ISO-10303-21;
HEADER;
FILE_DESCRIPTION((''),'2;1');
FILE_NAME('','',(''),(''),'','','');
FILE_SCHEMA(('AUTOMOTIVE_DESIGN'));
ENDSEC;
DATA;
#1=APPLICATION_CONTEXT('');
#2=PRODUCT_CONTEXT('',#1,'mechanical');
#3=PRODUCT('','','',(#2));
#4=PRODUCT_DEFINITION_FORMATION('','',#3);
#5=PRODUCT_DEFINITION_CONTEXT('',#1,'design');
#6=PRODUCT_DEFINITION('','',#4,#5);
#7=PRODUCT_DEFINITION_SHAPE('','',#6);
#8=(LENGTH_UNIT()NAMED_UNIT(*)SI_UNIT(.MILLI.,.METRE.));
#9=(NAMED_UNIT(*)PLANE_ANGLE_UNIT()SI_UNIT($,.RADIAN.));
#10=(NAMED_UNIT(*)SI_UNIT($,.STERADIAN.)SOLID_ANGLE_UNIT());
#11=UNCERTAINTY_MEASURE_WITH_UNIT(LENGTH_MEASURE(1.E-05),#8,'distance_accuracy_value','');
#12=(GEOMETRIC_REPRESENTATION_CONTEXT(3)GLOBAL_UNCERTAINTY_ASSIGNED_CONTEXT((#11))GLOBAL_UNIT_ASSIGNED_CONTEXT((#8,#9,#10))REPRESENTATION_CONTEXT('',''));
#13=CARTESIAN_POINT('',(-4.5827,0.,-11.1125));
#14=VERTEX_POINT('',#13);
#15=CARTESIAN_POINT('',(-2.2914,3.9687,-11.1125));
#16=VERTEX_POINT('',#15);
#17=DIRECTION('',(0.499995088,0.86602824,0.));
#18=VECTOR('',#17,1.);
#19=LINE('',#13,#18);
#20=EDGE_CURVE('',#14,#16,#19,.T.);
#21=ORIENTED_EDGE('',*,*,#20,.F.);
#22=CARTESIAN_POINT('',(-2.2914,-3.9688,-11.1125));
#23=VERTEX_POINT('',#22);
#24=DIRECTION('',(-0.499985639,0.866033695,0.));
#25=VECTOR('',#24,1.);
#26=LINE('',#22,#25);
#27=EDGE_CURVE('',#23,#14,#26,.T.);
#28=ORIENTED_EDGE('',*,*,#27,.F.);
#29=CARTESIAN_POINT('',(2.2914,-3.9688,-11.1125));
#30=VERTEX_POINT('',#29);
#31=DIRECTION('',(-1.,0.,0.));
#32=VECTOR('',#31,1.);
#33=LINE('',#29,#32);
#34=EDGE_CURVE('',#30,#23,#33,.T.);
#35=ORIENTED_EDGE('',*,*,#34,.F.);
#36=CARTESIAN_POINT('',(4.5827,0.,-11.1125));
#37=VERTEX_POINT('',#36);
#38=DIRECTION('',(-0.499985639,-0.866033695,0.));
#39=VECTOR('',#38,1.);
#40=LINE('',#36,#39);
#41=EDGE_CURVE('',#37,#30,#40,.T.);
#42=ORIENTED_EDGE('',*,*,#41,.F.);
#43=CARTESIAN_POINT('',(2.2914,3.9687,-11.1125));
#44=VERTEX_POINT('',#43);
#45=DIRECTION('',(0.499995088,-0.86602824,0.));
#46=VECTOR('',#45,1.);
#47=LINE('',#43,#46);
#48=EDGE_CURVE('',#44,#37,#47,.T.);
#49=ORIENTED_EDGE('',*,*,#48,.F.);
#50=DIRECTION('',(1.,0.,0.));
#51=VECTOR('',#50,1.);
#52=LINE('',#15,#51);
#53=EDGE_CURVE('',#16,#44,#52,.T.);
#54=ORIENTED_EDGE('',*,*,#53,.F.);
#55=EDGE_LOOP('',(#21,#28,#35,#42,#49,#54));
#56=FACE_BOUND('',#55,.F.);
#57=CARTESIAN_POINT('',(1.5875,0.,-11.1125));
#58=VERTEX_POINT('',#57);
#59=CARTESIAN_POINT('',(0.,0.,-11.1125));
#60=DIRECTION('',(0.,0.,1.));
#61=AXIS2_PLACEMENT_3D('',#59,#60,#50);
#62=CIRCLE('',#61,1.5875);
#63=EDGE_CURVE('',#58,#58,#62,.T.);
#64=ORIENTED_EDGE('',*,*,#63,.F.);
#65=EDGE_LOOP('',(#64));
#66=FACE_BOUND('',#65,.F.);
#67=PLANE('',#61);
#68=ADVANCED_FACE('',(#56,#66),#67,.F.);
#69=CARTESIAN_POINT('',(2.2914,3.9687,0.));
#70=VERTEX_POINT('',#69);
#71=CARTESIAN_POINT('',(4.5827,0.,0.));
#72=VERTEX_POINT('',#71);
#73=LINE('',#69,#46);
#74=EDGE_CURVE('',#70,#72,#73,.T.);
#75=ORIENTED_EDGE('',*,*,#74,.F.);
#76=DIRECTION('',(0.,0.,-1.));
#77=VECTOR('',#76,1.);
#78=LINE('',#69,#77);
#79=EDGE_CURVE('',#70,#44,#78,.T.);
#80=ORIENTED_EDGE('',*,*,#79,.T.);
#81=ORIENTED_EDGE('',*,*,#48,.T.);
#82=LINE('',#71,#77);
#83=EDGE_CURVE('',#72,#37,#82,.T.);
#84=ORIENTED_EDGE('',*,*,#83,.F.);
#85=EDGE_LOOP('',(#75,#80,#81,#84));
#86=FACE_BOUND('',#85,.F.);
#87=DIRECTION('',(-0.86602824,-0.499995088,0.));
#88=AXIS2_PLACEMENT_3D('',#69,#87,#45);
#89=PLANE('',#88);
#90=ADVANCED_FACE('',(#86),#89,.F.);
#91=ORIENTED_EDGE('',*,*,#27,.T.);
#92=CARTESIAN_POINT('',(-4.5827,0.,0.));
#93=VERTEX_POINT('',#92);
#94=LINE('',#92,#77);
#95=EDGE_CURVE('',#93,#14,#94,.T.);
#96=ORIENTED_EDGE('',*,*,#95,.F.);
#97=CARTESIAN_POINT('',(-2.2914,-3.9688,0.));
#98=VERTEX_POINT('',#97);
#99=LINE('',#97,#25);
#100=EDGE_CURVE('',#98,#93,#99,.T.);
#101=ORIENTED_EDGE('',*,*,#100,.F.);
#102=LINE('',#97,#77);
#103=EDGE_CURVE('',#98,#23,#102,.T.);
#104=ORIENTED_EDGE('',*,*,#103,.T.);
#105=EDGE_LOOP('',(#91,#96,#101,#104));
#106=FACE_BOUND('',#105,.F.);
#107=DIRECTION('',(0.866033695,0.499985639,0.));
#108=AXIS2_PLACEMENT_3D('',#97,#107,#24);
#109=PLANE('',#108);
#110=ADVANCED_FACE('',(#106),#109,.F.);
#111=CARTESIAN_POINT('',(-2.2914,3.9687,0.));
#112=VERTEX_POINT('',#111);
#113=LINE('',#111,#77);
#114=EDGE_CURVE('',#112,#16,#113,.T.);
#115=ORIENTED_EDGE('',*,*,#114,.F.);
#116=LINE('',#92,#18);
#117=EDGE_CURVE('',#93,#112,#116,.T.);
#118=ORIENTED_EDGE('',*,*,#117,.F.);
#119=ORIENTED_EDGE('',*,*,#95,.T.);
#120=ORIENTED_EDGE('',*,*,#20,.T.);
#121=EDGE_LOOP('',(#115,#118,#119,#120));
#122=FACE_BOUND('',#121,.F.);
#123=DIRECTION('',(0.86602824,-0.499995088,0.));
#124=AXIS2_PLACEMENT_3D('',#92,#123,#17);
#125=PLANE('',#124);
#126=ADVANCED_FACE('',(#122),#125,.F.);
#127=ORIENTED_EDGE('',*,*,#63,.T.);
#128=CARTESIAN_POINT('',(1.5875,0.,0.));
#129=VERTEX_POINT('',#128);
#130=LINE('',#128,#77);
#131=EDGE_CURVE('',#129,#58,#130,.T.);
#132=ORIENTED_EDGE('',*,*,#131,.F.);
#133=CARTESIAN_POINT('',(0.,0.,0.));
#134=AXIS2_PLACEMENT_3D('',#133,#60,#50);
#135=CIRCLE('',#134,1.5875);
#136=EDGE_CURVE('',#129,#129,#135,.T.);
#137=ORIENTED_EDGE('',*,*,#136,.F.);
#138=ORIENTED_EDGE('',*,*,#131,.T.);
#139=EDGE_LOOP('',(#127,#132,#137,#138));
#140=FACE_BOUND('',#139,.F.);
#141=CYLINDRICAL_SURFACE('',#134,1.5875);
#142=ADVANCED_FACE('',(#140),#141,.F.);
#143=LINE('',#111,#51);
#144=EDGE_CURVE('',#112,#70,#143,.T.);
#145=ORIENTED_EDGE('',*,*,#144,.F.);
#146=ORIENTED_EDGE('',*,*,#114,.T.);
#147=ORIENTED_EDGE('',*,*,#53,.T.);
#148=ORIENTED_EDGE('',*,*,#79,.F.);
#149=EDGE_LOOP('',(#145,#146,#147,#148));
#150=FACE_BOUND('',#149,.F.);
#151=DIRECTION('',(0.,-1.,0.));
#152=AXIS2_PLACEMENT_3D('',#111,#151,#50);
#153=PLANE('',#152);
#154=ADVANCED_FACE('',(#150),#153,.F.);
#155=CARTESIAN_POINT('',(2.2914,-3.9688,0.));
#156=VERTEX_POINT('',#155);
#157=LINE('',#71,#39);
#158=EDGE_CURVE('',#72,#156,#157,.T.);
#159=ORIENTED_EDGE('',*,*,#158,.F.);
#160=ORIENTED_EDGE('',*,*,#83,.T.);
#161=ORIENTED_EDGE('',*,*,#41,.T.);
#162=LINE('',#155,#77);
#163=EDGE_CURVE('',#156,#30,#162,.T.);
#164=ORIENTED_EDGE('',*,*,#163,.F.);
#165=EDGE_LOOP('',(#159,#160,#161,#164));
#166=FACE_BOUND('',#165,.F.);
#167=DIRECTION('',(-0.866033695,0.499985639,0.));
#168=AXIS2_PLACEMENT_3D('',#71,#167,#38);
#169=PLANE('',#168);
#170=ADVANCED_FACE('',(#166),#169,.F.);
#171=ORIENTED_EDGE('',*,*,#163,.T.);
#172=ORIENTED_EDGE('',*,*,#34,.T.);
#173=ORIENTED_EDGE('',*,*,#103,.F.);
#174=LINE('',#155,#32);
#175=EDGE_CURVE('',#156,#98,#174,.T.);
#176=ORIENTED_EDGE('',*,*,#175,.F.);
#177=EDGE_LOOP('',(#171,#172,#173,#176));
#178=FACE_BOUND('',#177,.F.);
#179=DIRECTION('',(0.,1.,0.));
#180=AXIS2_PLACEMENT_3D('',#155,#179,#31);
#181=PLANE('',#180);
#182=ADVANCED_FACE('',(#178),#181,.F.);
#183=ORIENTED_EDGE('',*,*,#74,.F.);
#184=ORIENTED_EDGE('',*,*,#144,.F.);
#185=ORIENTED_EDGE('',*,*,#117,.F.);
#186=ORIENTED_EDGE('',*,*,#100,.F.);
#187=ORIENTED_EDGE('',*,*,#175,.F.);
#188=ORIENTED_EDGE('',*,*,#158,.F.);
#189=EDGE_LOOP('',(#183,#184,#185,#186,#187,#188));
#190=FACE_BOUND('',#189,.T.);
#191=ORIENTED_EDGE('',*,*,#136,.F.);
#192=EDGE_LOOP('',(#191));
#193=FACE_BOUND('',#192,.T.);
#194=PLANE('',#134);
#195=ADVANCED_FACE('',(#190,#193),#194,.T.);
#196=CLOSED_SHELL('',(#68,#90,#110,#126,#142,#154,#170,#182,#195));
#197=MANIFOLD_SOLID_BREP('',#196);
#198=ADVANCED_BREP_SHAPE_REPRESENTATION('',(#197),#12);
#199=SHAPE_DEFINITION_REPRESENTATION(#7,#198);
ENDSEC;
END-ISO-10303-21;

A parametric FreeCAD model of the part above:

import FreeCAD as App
import Part
import Sketcher

V = App.Vector
Q = App.Units.Quantity


def add_polygon(sketch, points):
    """Adds a closed chain of lines whose ends are joined by coincident constraints."""
    first, n = sketch.GeometryCount, len(points)
    for a, b in zip(points, points[1:] + points[:1]):
        sketch.addGeometry(Part.LineSegment(App.Vector(*a, 0), App.Vector(*b, 0)), False)
    for i in range(n):
        sketch.addConstraint(Sketcher.Constraint("Coincident", first + i, 2, first + (i + 1) % n, 1))

doc = App.newDocument("Part")
params = doc.addObject("Spreadsheet::Sheet", "Params")
for row, (alias, value) in enumerate([
    ("sketch1_diameter", "0.125 in"),
    ("pad1_length", "0.4375 in"),
], start=1):
    params.set(f"A{row}", alias)
    params.set(f"B{row}", "=" + value)
    params.setAlias(f"B{row}", alias)

body = doc.addObject("PartDesign::Body", "Body")

# Sketch on XY plane
sketch1 = doc.addObject("Sketcher::SketchObject", "Sketch")
body.addObject(sketch1)
sketch1.AttachmentSupport = (doc.XY_Plane, [""])
sketch1.MapMode = "FlatFace"
add_polygon(sketch1, [(-2.3, 4), (-4.6, 0), (-2.3, -4), (2.3, -4), (4.6, 0), (2.3, 4)])  # lines 0-5
sketch1.addGeometry(Part.Circle(V(0, 0, 0), V(0, 0, 1), 1.6), False)  # 6
sketch1.addConstraint([
    Sketcher.Constraint("Horizontal", 2),
    Sketcher.Constraint("Horizontal", 5),
    Sketcher.Constraint("Coincident", 6, 3, -1, 1),
    Sketcher.Constraint("Symmetric", 0, 2, 3, 2, -1, 1),
    Sketcher.Constraint("Symmetric", 1, 2, 4, 2, -1, 1),
    Sketcher.Constraint("PointOnObject", 0, 2, -1),
    Sketcher.Constraint("Parallel", 0, 3),
    Sketcher.Constraint("Vertical", 2, 2, 4, 2),
    Sketcher.Constraint("Diameter", 6, Q("0.125 in")),
    Sketcher.Constraint("Angle", 0, Q("-119.9997 deg")),
    Sketcher.Constraint("DistanceY", 2, 2, 4, 2, Q("0.3125 in")),
    Sketcher.Constraint("DistanceX", 2, 1, 2, 2, 4.5828),
])
sketch1.setExpression("Constraints[14]", "Params.sketch1_diameter")
pad1 = doc.addObject("PartDesign::Pad", "Pad")
body.addObject(pad1)
pad1.Profile = sketch1
pad1.setExpression("Length", "Params.pad1_length")
pad1.Reversed = True

doc.recompute()
